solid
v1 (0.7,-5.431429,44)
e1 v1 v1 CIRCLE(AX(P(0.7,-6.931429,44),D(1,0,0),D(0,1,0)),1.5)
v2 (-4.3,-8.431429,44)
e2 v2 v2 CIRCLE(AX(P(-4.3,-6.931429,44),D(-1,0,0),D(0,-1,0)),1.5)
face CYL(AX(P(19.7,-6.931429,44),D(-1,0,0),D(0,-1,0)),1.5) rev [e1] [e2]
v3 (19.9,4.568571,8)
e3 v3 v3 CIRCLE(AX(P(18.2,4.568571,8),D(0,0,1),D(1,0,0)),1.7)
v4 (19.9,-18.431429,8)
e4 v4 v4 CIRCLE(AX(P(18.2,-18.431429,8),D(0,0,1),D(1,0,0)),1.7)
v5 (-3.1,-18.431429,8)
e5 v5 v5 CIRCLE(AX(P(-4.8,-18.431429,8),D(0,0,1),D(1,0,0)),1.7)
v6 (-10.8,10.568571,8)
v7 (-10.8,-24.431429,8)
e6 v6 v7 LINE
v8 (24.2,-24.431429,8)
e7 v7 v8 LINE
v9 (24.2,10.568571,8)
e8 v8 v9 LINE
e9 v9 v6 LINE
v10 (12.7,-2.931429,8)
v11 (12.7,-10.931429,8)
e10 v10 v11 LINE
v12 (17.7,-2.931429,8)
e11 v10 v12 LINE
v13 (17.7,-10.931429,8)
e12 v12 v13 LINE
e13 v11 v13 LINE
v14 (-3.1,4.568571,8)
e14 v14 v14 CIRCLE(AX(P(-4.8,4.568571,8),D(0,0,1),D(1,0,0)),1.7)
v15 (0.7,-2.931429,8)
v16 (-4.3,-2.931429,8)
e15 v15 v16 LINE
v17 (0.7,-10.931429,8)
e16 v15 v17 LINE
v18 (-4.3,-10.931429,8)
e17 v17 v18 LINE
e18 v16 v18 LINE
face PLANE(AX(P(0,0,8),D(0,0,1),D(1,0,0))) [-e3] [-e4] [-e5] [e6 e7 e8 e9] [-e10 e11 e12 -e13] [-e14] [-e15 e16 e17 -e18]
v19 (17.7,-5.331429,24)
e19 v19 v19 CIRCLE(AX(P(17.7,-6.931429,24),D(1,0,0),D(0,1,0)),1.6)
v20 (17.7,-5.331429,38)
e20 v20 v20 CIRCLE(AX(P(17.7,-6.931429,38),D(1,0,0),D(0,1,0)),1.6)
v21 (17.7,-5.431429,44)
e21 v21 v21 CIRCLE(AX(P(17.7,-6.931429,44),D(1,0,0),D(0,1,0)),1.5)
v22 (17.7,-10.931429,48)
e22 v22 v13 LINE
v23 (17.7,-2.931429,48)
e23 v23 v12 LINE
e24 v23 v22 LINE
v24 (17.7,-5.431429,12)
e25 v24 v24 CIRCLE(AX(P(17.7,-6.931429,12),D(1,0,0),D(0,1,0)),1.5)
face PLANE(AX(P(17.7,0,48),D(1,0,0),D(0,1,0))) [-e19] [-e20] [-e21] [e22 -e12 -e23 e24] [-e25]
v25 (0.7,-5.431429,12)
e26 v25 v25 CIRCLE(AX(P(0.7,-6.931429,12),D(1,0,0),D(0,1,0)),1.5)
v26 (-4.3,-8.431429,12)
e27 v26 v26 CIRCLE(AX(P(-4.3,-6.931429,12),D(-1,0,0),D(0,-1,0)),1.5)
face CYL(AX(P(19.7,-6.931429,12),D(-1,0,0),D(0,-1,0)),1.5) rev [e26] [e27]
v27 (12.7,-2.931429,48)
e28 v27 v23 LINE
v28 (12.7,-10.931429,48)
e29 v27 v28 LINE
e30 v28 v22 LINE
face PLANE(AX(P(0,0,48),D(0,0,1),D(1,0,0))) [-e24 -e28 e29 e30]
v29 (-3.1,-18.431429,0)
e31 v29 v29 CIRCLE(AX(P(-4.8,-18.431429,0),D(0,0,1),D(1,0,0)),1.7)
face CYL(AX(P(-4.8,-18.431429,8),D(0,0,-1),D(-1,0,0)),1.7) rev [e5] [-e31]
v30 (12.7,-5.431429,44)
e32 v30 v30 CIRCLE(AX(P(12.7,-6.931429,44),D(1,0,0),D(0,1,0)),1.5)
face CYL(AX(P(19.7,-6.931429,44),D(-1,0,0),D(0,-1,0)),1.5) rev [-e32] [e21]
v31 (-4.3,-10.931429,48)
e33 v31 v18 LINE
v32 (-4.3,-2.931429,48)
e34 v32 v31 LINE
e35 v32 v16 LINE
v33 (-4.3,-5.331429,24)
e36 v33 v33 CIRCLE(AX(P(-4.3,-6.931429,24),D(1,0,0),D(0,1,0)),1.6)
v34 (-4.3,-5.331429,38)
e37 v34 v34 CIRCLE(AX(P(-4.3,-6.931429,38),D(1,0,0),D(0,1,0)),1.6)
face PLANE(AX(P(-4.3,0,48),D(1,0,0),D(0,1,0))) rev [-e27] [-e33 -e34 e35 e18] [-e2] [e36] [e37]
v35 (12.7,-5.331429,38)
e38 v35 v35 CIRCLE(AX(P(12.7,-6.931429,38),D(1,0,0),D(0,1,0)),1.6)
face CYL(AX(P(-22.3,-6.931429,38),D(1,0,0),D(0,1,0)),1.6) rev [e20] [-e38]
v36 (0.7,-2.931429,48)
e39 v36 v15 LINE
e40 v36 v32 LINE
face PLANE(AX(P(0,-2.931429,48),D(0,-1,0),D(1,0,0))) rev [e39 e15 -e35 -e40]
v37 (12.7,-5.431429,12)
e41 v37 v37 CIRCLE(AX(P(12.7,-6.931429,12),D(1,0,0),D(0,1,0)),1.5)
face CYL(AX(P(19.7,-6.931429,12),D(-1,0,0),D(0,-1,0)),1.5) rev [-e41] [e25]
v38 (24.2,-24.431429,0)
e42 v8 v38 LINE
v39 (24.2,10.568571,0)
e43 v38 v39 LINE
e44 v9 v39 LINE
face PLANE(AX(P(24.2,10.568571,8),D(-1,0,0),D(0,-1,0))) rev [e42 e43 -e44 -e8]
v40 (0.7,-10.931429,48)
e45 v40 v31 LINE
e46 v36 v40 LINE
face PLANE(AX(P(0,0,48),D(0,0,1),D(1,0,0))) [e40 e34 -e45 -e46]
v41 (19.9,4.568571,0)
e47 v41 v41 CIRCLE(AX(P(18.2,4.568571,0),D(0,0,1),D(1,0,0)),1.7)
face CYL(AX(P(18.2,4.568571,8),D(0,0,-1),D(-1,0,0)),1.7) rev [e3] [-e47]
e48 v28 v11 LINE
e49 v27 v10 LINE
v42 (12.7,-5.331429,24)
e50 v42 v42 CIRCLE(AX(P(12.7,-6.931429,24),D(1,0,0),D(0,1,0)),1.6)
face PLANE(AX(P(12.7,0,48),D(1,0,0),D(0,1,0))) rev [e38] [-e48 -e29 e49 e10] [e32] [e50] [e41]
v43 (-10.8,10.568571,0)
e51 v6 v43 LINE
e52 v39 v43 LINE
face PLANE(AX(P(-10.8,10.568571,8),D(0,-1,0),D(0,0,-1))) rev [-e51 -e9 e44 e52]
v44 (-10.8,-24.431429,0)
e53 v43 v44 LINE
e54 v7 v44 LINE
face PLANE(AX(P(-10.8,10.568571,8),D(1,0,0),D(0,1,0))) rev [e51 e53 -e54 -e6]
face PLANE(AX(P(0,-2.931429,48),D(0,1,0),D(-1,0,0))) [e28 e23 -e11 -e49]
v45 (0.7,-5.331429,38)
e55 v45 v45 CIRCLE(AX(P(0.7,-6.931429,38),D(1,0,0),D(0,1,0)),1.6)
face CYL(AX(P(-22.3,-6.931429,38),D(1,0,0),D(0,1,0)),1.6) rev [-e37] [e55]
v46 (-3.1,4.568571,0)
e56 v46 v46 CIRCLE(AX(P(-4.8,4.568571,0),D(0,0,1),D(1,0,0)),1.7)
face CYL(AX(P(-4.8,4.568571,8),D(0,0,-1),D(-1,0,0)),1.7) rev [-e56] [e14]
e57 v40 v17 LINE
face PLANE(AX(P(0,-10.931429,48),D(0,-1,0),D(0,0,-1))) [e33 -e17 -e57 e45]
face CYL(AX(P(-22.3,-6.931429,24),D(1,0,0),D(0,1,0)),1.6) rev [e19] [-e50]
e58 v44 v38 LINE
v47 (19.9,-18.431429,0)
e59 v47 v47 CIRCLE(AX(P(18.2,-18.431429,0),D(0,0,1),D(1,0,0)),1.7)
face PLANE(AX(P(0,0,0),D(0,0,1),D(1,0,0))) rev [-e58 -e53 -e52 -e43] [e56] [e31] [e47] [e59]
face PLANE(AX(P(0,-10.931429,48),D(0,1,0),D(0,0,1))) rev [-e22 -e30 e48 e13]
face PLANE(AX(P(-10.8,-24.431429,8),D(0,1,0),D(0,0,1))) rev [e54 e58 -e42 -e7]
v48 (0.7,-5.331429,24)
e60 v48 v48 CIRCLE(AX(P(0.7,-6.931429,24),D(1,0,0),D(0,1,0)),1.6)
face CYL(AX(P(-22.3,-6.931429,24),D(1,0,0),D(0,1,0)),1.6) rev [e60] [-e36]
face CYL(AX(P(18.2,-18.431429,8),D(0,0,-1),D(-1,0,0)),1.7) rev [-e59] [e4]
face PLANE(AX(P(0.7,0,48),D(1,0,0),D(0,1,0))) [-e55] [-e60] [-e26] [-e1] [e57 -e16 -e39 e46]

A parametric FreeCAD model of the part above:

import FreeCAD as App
import Part
import Sketcher
from FreeCAD import Vector
Q = App.Units.Quantity


def add_polygon(sketch, points):
    """Adds a closed chain of lines whose ends are joined by coincident constraints."""
    first, n = sketch.GeometryCount, len(points)
    for a, b in zip(points, points[1:] + points[:1]):
        sketch.addGeometry(Part.LineSegment(App.Vector(*a, 0), App.Vector(*b, 0)), False)
    for i in range(n):
        sketch.addConstraint(Sketcher.Constraint("Coincident", first + i, 2, first + (i + 1) % n, 1))

doc = App.newDocument("Part")
body = doc.addObject("PartDesign::Body", "Body")

# Sketch on XY plane
sketch1 = body.newObject("Sketcher::SketchObject", "Sketch")
sketch1.AttachmentSupport = (doc.getObject("XY_Plane"), [""])
sketch1.MapMode = "FlatFace"
add_polygon(sketch1, [(-10.8, 10.568571), (-10.8, -24.431429), (24.2, -24.431429), (24.2, 10.568571)])  # lines 0-3
sketch1.addGeometry(Part.Circle(Vector(-4.8, -18.431429, 0), Vector(0, 0, 1), 1.7), False)  # 4
sketch1.addGeometry(Part.Circle(Vector(18.2, -18.431429, 0), Vector(0, 0, 1), 1.7), False)  # 5
sketch1.addGeometry(Part.Circle(Vector(-4.8, 4.568571, 0), Vector(0, 0, 1), 1.7), False)  # 6
sketch1.addGeometry(Part.Circle(Vector(18.2, 4.568571, 0), Vector(0, 0, 1), 1.7), False)  # 7
sketch1.addConstraint(Sketcher.Constraint("Vertical", 0))
sketch1.addConstraint(Sketcher.Constraint("Horizontal", 1))
sketch1.addConstraint(Sketcher.Constraint("Vertical", 2))
sketch1.addConstraint(Sketcher.Constraint("Horizontal", 3))
sketch1.addConstraint(Sketcher.Constraint("Equal", 4, 5))
sketch1.addConstraint(Sketcher.Constraint("Equal", 5, 6))
sketch1.addConstraint(Sketcher.Constraint("Equal", 6, 7))
sketch1.addConstraint(Sketcher.Constraint("Horizontal", 4, 3, 5, 3))
sketch1.addConstraint(Sketcher.Constraint("Horizontal", 6, 3, 7, 3))
sketch1.addConstraint(Sketcher.Constraint("Vertical", 4, 3, 6, 3))
sketch1.addConstraint(Sketcher.Constraint("Vertical", 5, 3, 7, 3))
sketch1.addConstraint(Sketcher.Constraint("Equal", 3, 0))
sketch1.addConstraint(Sketcher.Constraint("Diameter", 4, Q("3.4 mm")))
sketch1.addConstraint(Sketcher.Constraint("DistanceX", 1, 1, 1, 2, Q("35 mm")))
sketch1.addConstraint(Sketcher.Constraint("DistanceX", 4, 3, 5, 3, Q("23 mm")))
sketch1.addConstraint(Sketcher.Constraint("DistanceY", 4, 3, 6, 3, Q("23 mm")))
sketch1.addConstraint(Sketcher.Constraint("DistanceX", 0, 2, 4, 3, Q("6 mm")))
sketch1.addConstraint(Sketcher.Constraint("DistanceY", 0, 2, 4, 3, Q("6 mm")))
sketch1.addConstraint(Sketcher.Constraint("DistanceX", 4, 3, -1, 1, Q("4.8 mm")))
sketch1.addConstraint(Sketcher.Constraint("DistanceY", 4, 3, -1, 1, Q("18.431429 mm")))
pad1 = body.newObject("PartDesign::Pad", "Pad")
pad1.Profile = sketch1
pad1.Length = 8

# Sketch on XY plane
sketch2 = body.newObject("Sketcher::SketchObject", "Sketch001")
sketch2.AttachmentSupport = (doc.getObject("XY_Plane"), [""])
sketch2.MapMode = "FlatFace"
sketch2.AttachmentOffset = App.Placement(Vector(0, 0, 8), App.Rotation())
add_polygon(sketch2, [(-4.3, -2.931429), (-4.3, -10.931429), (0.7, -10.931429), (0.7, -2.931429)])  # lines 0-3
add_polygon(sketch2, [(12.7, -2.931429), (12.7, -10.931429), (17.7, -10.931429), (17.7, -2.931429)])  # lines 4-7
sketch2.addConstraint(Sketcher.Constraint("Vertical", 0))
sketch2.addConstraint(Sketcher.Constraint("Horizontal", 1))
sketch2.addConstraint(Sketcher.Constraint("Vertical", 2))
sketch2.addConstraint(Sketcher.Constraint("Horizontal", 3))
sketch2.addConstraint(Sketcher.Constraint("Vertical", 4))
sketch2.addConstraint(Sketcher.Constraint("Horizontal", 5))
sketch2.addConstraint(Sketcher.Constraint("Vertical", 6))
sketch2.addConstraint(Sketcher.Constraint("Horizontal", 7))
sketch2.addConstraint(Sketcher.Constraint("Horizontal", 1, 2, 4, 2))
sketch2.addConstraint(Sketcher.Constraint("Horizontal", 3, 2, 6, 2))
sketch2.addConstraint(Sketcher.Constraint("Equal", 3, 5))
sketch2.addConstraint(Sketcher.Constraint("DistanceX", 1, 1, 1, 2, Q("5 mm")))
sketch2.addConstraint(Sketcher.Constraint("DistanceY", 0, 2, 0, 1, Q("8 mm")))
sketch2.addConstraint(Sketcher.Constraint("DistanceX", 1, 2, 4, 2, Q("12 mm")))
sketch2.addConstraint(Sketcher.Constraint("DistanceX", 0, 2, -1, 1, Q("4.3 mm")))
sketch2.addConstraint(Sketcher.Constraint("DistanceY", 0, 2, -1, 1, Q("10.931429 mm")))
pad2 = body.newObject("PartDesign::Pad", "Pad001")
pad2.Profile = sketch2
pad2.Length = 40

# Sketch on YZ plane
sketch3 = body.newObject("Sketcher::SketchObject", "Sketch002")
sketch3.AttachmentSupport = (doc.getObject("YZ_Plane"), [""])
sketch3.MapMode = "FlatFace"
sketch3.AttachmentOffset = App.Placement(Vector(0, 0, 17.7), App.Rotation())
sketch3.addGeometry(Part.Circle(Vector(-6.931429, 38, 0), Vector(0, 0, 1), 1.6), False)
sketch3.addGeometry(Part.Circle(Vector(-6.931429, 24, 0), Vector(0, 0, 1), 1.6), False)
sketch3.addConstraint(Sketcher.Constraint("Equal", 0, 1))
sketch3.addConstraint(Sketcher.Constraint("Vertical", 0, 3, 1, 3))
sketch3.addConstraint(Sketcher.Constraint("Diameter", 0, Q("3.2 mm")))
sketch3.addConstraint(Sketcher.Constraint("DistanceY", -1, 1, 0, 3, Q("38 mm")))
sketch3.addConstraint(Sketcher.Constraint("DistanceY", -1, 1, 1, 3, Q("24 mm")))
sketch3.addConstraint(Sketcher.Constraint("DistanceX", 0, 3, -1, 1, Q("6.931429 mm")))
pocket1 = body.newObject("PartDesign::Pocket", "Pocket")
pocket1.Profile = sketch3
pocket1.Length = 40

# Sketch on YZ plane
sketch4 = body.newObject("Sketcher::SketchObject", "Sketch003")
sketch4.AttachmentSupport = (doc.getObject("YZ_Plane"), [""])
sketch4.MapMode = "FlatFace"
sketch4.AttachmentOffset = App.Placement(Vector(0, 0, -4.3), App.Rotation())
sketch4.addGeometry(Part.Circle(Vector(-6.931429, 12, 0), Vector(0, 0, 1), 1.5), False)
sketch4.addGeometry(Part.Circle(Vector(-6.931429, 44, 0), Vector(0, 0, 1), 1.5), False)
sketch4.addConstraint(Sketcher.Constraint("Equal", 0, 1))
sketch4.addConstraint(Sketcher.Constraint("Vertical", 0, 3, 1, 3))
sketch4.addConstraint(Sketcher.Constraint("Diameter", 0, Q("3 mm")))
sketch4.addConstraint(Sketcher.Constraint("DistanceY", -1, 1, 0, 3, Q("12 mm")))
sketch4.addConstraint(Sketcher.Constraint("DistanceY", -1, 1, 1, 3, Q("44 mm")))
sketch4.addConstraint(Sketcher.Constraint("DistanceX", 0, 3, -1, 1, Q("6.931429 mm")))
pocket2 = body.newObject("PartDesign::Pocket", "Pocket001")
pocket2.Profile = sketch4
pocket2.Length = 24
pocket2.Reversed = True

doc.recompute()
